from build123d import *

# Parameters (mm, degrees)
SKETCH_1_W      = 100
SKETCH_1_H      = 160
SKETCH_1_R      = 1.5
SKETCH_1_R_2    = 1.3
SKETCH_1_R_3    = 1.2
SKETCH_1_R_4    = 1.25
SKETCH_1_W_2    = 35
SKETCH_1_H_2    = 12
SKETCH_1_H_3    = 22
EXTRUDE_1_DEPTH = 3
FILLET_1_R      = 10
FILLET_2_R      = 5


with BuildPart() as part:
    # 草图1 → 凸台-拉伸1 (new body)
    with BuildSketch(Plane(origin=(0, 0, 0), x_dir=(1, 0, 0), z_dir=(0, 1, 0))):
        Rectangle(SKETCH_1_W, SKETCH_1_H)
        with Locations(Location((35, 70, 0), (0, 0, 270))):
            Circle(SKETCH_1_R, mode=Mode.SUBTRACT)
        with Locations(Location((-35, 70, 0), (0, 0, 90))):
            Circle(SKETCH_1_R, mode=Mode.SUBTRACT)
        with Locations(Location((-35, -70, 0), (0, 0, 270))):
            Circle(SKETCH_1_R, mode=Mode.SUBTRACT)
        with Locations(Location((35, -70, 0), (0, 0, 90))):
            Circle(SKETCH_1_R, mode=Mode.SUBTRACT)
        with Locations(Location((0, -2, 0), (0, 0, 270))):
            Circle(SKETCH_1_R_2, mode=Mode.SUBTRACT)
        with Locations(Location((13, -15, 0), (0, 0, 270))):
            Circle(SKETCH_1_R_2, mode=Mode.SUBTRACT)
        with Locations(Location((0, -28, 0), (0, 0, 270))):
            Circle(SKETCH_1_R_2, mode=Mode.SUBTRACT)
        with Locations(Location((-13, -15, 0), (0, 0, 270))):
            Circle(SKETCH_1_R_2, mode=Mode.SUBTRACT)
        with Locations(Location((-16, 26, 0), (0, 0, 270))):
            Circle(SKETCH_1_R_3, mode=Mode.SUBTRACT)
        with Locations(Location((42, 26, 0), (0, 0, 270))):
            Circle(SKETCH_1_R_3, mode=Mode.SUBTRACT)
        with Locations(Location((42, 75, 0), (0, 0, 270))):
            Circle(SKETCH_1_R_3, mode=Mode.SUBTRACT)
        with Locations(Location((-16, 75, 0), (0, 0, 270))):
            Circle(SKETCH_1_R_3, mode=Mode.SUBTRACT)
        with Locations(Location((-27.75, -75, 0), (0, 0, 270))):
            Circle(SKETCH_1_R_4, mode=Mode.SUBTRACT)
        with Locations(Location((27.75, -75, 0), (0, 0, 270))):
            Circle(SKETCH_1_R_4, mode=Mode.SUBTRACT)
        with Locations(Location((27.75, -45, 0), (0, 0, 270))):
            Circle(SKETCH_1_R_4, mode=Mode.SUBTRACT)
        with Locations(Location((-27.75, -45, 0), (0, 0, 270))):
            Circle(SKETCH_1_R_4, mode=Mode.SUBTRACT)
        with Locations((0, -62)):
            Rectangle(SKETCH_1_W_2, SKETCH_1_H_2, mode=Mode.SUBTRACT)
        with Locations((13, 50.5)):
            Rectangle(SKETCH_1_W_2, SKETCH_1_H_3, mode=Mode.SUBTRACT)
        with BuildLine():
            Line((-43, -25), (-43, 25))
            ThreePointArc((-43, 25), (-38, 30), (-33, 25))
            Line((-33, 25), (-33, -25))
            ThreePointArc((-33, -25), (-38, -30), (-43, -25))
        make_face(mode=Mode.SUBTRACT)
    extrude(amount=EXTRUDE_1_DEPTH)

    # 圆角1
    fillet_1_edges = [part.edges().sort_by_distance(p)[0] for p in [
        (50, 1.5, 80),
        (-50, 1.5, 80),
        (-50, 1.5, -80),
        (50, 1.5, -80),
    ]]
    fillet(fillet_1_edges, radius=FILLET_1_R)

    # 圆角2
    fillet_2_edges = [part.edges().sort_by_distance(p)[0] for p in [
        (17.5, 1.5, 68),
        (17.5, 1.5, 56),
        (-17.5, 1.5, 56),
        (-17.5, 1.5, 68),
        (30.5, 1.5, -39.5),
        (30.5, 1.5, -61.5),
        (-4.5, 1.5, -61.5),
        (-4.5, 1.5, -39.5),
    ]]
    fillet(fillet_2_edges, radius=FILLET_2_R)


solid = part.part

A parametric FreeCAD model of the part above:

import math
import FreeCAD as App
import Part
import Sketcher


def edges_at(feature, points):
    """Names of the edges that pass closest to the given points."""
    edges = feature.Shape.Edges
    near = lambda p: min(range(len(edges)), key=lambda i: edges[i].distToShape(Part.Vertex(*p))[0])
    return sorted({f"Edge{near(p) + 1}" for p in points})

doc = App.newDocument("Part")
body = doc.addObject("PartDesign::Body", "Body")

# Sketch on XZ plane
sketch1 = body.newObject("Sketcher::SketchObject", "Sketch")
sketch1.AttachmentSupport = (doc.getObject("XZ_Plane"), [""])
sketch1.MapMode = "FlatFace"
sketch1.addGeometry([
    Part.LineSegment(App.Vector(-50, -80, 0), App.Vector(-50, 80, 0)),  # 0
    Part.LineSegment(App.Vector(-50, 80, 0), App.Vector(50, 80, 0)),  # 1
    Part.LineSegment(App.Vector(50, 80, 0), App.Vector(50, -80, 0)),  # 2
    Part.LineSegment(App.Vector(50, -80, 0), App.Vector(-50, -80, 0)),  # 3
    Part.Circle(App.Vector(-35, 70, 0), App.Vector(0, 0, 1), 1.5),  # 4
    Part.Circle(App.Vector(-27.8, 75, 0), App.Vector(0, 0, 1), 1.2),  # 5
    Part.Circle(App.Vector(-27.8, 45, 0), App.Vector(0, 0, 1), 1.2),  # 6
    Part.LineSegment(App.Vector(17.5, 68, 0), App.Vector(-17.5, 68, 0)),  # 7
    Part.LineSegment(App.Vector(-17.5, 68, 0), App.Vector(-17.5, 56, 0)),  # 8
    Part.LineSegment(App.Vector(-17.5, 56, 0), App.Vector(17.5, 56, 0)),  # 9
    Part.LineSegment(App.Vector(17.5, 56, 0), App.Vector(17.5, 68, 0)),  # 10
    Part.Circle(App.Vector(0, 28, 0), App.Vector(0, 0, 1), 1.3),  # 11
    Part.Circle(App.Vector(-13, 15, 0), App.Vector(0, 0, 1), 1.3),  # 12
    Part.Circle(App.Vector(0, 2, 0), App.Vector(0, 0, 1), 1.3),  # 13
    Part.Circle(App.Vector(27.8, 75, 0), App.Vector(0, 0, 1), 1.2),  # 14
    Part.Circle(App.Vector(35, 70, 0), App.Vector(0, 0, 1), 1.5),  # 15
    Part.Circle(App.Vector(27.8, 45, 0), App.Vector(0, 0, 1), 1.2),  # 16
    Part.Circle(App.Vector(13, 15, 0), App.Vector(0, 0, 1), 1.3),  # 17
    Part.ArcOfCircle(Part.Circle(App.Vector(-38, 25, 0), App.Vector(0, 0, 1), 5), math.radians(0), math.radians(180)),  # 18
    Part.LineSegment(App.Vector(-43, 25, 0), App.Vector(-43, -25, 0)),  # 19
    Part.ArcOfCircle(Part.Circle(App.Vector(-38, -25, 0), App.Vector(0, 0, 1), 5), math.radians(180), math.radians(360)),  # 20
    Part.LineSegment(App.Vector(-33, -25, 0), App.Vector(-33, 25, 0)),  # 21
    Part.Circle(App.Vector(-16, -26, 0), App.Vector(0, 0, 1), 1.2),  # 22
    Part.Circle(App.Vector(-35, -70, 0), App.Vector(0, 0, 1), 1.5),  # 23
    Part.Circle(App.Vector(-16, -75, 0), App.Vector(0, 0, 1), 1.2),  # 24
    Part.Circle(App.Vector(42, -26, 0), App.Vector(0, 0, 1), 1.2),  # 25
    Part.LineSegment(App.Vector(30.5, -39.5, 0), App.Vector(-4.5, -39.5, 0)),  # 26
    Part.LineSegment(App.Vector(-4.5, -39.5, 0), App.Vector(-4.5, -61.5, 0)),  # 27
    Part.LineSegment(App.Vector(-4.5, -61.5, 0), App.Vector(30.5, -61.5, 0)),  # 28
    Part.LineSegment(App.Vector(30.5, -61.5, 0), App.Vector(30.5, -39.5, 0)),  # 29
    Part.Circle(App.Vector(35, -70, 0), App.Vector(0, 0, 1), 1.5),  # 30
    Part.Circle(App.Vector(42, -75, 0), App.Vector(0, 0, 1), 1.2),  # 31
], False)
sketch1.addConstraint([
    Sketcher.Constraint("Coincident", 0, 2, 1, 1),
    Sketcher.Constraint("Coincident", 1, 2, 2, 1),
    Sketcher.Constraint("Coincident", 2, 2, 3, 1),
    Sketcher.Constraint("Coincident", 3, 2, 0, 1),
    Sketcher.Constraint("Coincident", 7, 2, 8, 1),
    Sketcher.Constraint("Coincident", 8, 2, 9, 1),
    Sketcher.Constraint("Coincident", 9, 2, 10, 1),
    Sketcher.Constraint("Coincident", 10, 2, 7, 1),
    Sketcher.Constraint("Tangent", 18, 2, 19, 1),
    Sketcher.Constraint("Tangent", 19, 2, 20, 1),
    Sketcher.Constraint("Tangent", 20, 2, 21, 1),
    Sketcher.Constraint("Tangent", 21, 2, 18, 1),
    Sketcher.Constraint("Coincident", 26, 2, 27, 1),
    Sketcher.Constraint("Coincident", 27, 2, 28, 1),
    Sketcher.Constraint("Coincident", 28, 2, 29, 1),
    Sketcher.Constraint("Coincident", 29, 2, 26, 1),
    Sketcher.Constraint("Vertical", 0),
    Sketcher.Constraint("Horizontal", 1),
    Sketcher.Constraint("Vertical", 2),
    Sketcher.Constraint("Horizontal", 3),
    Sketcher.Constraint("Horizontal", 7),
    Sketcher.Constraint("Vertical", 8),
    Sketcher.Constraint("Horizontal", 9),
    Sketcher.Constraint("Vertical", 10),
    Sketcher.Constraint("Vertical", 19),
    Sketcher.Constraint("Vertical", 21),
    Sketcher.Constraint("Horizontal", 26),
    Sketcher.Constraint("Vertical", 27),
    Sketcher.Constraint("Horizontal", 28),
    Sketcher.Constraint("Vertical", 29),
    Sketcher.Constraint("Equal", 5, 6),
    Sketcher.Constraint("Equal", 11, 12),
    Sketcher.Constraint("Equal", 12, 13),
    Sketcher.Constraint("Equal", 6, 14),
    Sketcher.Constraint("Equal", 4, 15),
    Sketcher.Constraint("Equal", 14, 16),
    Sketcher.Constraint("Equal", 13, 17),
    Sketcher.Constraint("Equal", 15, 23),
    Sketcher.Constraint("Equal", 22, 24),
    Sketcher.Constraint("Equal", 24, 25),
    Sketcher.Constraint("Equal", 23, 30),
    Sketcher.Constraint("Equal", 25, 31),
    Sketcher.Constraint("Symmetric", 15, 3, 23, 3, -1, 1),
    Sketcher.Constraint("Symmetric", 4, 3, 30, 3, -1, 1),
    Sketcher.Constraint("Symmetric", 0, 2, 2, 2, -1, 1),
    Sketcher.Constraint("Symmetric", 5, 3, 14, 3, -2),
    Sketcher.Constraint("Symmetric", 4, 3, 15, 3, -2),
    Sketcher.Constraint("Symmetric", 6, 3, 16, 3, -2),
    Sketcher.Constraint("Symmetric", 12, 3, 17, 3, -2),
    Sketcher.Constraint("PointOnObject", 11, 3, -2),
    Sketcher.Constraint("PointOnObject", 13, 3, -2),
    Sketcher.Constraint("Horizontal", 22, 3, 25, 3),
    Sketcher.Constraint("Horizontal", 24, 3, 31, 3),
    Sketcher.Constraint("Vertical", 5, 3, 6, 3),
    Sketcher.Constraint("Vertical", 22, 3, 24, 3),
    Sketcher.Constraint("Vertical", 25, 3, 31, 3),
    Sketcher.Constraint("Equal", 9, 26),
    Sketcher.Constraint("Diameter", 4, 3.0),
    Sketcher.Constraint("Radius", 18, 5.0),
    Sketcher.Constraint("Diameter", 5, 2.5),
    Sketcher.Constraint("Diameter", 11, 2.6),
    Sketcher.Constraint("Diameter", 22, 2.4),
    Sketcher.Constraint("DistanceX", 1, 1, 1, 2, 100.0),
    Sketcher.Constraint("DistanceX", 7, 2, 7, 1, 35.0),
    Sketcher.Constraint("DistanceY", 0, 1, 0, 2, 160.0),
    Sketcher.Constraint("DistanceY", 8, 2, 8, 1, 12.0),
    Sketcher.Constraint("DistanceY", 19, 2, 19, 1, 50.0),
    Sketcher.Constraint("DistanceY", 27, 2, 27, 1, 22.0),
    Sketcher.Constraint("DistanceX", 4, 3, -1, 1, 35.0),
    Sketcher.Constraint("DistanceY", -1, 1, 4, 3, 70.0),
    Sketcher.Constraint("DistanceY", -1, 1, 5, 3, 75.0),
    Sketcher.Constraint("DistanceY", -1, 1, 6, 3, 45.0),
    Sketcher.Constraint("DistanceY", -1, 1, 11, 3, 28.0),
    Sketcher.Constraint("DistanceX", 12, 3, -1, 1, 13.0),
    Sketcher.Constraint("DistanceY", -1, 1, 12, 3, 15.0),
    Sketcher.Constraint("DistanceY", -1, 1, 13, 3, 2.0),
    Sketcher.Constraint("DistanceX", 18, 3, -1, 1, 38.0),
    Sketcher.Constraint("DistanceY", -1, 1, 18, 3, 25.0),
    Sketcher.Constraint("DistanceX", 22, 3, -1, 1, 16.0),
    Sketcher.Constraint("DistanceY", 22, 3, -1, 1, 26.0),
    Sketcher.Constraint("DistanceY", 24, 3, -1, 1, 75.0),
    Sketcher.Constraint("DistanceX", -1, 1, 25, 3, 42.0),
    Sketcher.Constraint("DistanceY", -1, 1, 7, 2, 68.0),
    Sketcher.Constraint("DistanceX", 7, 2, -1, 1, 17.5),
    Sketcher.Constraint("DistanceX", 26, 2, -1, 1, 4.5),
    Sketcher.Constraint("DistanceY", 26, 2, -1, 1, 39.5),
    Sketcher.Constraint("DistanceX", 5, 3, 14, 3, 55.5),
])
pad1 = body.newObject("PartDesign::Pad", "Pad")
pad1.Profile = sketch1
pad1.Length = 3
pad1.Reversed = True
doc.recompute()

fillet = body.newObject("PartDesign::Fillet", "Fillet")
fillet.Base = (pad1, edges_at(pad1, [
    (50, 1.5, 80),
    (-50, 1.5, 80),
    (-50, 1.5, -80),
    (50, 1.5, -80),
]))
fillet.Radius = 10
doc.recompute()

fillet2 = body.newObject("PartDesign::Fillet", "Fillet001")
fillet2.Base = (fillet, edges_at(fillet, [
    (17.5, 1.5, 68),
    (17.5, 1.5, 56),
    (-17.5, 1.5, 56),
    (-17.5, 1.5, 68),
    (30.5, 1.5, -39.5),
    (30.5, 1.5, -61.5),
    (-4.5, 1.5, -61.5),
    (-4.5, 1.5, -39.5),
]))
fillet2.Radius = 5

doc.recompute()
